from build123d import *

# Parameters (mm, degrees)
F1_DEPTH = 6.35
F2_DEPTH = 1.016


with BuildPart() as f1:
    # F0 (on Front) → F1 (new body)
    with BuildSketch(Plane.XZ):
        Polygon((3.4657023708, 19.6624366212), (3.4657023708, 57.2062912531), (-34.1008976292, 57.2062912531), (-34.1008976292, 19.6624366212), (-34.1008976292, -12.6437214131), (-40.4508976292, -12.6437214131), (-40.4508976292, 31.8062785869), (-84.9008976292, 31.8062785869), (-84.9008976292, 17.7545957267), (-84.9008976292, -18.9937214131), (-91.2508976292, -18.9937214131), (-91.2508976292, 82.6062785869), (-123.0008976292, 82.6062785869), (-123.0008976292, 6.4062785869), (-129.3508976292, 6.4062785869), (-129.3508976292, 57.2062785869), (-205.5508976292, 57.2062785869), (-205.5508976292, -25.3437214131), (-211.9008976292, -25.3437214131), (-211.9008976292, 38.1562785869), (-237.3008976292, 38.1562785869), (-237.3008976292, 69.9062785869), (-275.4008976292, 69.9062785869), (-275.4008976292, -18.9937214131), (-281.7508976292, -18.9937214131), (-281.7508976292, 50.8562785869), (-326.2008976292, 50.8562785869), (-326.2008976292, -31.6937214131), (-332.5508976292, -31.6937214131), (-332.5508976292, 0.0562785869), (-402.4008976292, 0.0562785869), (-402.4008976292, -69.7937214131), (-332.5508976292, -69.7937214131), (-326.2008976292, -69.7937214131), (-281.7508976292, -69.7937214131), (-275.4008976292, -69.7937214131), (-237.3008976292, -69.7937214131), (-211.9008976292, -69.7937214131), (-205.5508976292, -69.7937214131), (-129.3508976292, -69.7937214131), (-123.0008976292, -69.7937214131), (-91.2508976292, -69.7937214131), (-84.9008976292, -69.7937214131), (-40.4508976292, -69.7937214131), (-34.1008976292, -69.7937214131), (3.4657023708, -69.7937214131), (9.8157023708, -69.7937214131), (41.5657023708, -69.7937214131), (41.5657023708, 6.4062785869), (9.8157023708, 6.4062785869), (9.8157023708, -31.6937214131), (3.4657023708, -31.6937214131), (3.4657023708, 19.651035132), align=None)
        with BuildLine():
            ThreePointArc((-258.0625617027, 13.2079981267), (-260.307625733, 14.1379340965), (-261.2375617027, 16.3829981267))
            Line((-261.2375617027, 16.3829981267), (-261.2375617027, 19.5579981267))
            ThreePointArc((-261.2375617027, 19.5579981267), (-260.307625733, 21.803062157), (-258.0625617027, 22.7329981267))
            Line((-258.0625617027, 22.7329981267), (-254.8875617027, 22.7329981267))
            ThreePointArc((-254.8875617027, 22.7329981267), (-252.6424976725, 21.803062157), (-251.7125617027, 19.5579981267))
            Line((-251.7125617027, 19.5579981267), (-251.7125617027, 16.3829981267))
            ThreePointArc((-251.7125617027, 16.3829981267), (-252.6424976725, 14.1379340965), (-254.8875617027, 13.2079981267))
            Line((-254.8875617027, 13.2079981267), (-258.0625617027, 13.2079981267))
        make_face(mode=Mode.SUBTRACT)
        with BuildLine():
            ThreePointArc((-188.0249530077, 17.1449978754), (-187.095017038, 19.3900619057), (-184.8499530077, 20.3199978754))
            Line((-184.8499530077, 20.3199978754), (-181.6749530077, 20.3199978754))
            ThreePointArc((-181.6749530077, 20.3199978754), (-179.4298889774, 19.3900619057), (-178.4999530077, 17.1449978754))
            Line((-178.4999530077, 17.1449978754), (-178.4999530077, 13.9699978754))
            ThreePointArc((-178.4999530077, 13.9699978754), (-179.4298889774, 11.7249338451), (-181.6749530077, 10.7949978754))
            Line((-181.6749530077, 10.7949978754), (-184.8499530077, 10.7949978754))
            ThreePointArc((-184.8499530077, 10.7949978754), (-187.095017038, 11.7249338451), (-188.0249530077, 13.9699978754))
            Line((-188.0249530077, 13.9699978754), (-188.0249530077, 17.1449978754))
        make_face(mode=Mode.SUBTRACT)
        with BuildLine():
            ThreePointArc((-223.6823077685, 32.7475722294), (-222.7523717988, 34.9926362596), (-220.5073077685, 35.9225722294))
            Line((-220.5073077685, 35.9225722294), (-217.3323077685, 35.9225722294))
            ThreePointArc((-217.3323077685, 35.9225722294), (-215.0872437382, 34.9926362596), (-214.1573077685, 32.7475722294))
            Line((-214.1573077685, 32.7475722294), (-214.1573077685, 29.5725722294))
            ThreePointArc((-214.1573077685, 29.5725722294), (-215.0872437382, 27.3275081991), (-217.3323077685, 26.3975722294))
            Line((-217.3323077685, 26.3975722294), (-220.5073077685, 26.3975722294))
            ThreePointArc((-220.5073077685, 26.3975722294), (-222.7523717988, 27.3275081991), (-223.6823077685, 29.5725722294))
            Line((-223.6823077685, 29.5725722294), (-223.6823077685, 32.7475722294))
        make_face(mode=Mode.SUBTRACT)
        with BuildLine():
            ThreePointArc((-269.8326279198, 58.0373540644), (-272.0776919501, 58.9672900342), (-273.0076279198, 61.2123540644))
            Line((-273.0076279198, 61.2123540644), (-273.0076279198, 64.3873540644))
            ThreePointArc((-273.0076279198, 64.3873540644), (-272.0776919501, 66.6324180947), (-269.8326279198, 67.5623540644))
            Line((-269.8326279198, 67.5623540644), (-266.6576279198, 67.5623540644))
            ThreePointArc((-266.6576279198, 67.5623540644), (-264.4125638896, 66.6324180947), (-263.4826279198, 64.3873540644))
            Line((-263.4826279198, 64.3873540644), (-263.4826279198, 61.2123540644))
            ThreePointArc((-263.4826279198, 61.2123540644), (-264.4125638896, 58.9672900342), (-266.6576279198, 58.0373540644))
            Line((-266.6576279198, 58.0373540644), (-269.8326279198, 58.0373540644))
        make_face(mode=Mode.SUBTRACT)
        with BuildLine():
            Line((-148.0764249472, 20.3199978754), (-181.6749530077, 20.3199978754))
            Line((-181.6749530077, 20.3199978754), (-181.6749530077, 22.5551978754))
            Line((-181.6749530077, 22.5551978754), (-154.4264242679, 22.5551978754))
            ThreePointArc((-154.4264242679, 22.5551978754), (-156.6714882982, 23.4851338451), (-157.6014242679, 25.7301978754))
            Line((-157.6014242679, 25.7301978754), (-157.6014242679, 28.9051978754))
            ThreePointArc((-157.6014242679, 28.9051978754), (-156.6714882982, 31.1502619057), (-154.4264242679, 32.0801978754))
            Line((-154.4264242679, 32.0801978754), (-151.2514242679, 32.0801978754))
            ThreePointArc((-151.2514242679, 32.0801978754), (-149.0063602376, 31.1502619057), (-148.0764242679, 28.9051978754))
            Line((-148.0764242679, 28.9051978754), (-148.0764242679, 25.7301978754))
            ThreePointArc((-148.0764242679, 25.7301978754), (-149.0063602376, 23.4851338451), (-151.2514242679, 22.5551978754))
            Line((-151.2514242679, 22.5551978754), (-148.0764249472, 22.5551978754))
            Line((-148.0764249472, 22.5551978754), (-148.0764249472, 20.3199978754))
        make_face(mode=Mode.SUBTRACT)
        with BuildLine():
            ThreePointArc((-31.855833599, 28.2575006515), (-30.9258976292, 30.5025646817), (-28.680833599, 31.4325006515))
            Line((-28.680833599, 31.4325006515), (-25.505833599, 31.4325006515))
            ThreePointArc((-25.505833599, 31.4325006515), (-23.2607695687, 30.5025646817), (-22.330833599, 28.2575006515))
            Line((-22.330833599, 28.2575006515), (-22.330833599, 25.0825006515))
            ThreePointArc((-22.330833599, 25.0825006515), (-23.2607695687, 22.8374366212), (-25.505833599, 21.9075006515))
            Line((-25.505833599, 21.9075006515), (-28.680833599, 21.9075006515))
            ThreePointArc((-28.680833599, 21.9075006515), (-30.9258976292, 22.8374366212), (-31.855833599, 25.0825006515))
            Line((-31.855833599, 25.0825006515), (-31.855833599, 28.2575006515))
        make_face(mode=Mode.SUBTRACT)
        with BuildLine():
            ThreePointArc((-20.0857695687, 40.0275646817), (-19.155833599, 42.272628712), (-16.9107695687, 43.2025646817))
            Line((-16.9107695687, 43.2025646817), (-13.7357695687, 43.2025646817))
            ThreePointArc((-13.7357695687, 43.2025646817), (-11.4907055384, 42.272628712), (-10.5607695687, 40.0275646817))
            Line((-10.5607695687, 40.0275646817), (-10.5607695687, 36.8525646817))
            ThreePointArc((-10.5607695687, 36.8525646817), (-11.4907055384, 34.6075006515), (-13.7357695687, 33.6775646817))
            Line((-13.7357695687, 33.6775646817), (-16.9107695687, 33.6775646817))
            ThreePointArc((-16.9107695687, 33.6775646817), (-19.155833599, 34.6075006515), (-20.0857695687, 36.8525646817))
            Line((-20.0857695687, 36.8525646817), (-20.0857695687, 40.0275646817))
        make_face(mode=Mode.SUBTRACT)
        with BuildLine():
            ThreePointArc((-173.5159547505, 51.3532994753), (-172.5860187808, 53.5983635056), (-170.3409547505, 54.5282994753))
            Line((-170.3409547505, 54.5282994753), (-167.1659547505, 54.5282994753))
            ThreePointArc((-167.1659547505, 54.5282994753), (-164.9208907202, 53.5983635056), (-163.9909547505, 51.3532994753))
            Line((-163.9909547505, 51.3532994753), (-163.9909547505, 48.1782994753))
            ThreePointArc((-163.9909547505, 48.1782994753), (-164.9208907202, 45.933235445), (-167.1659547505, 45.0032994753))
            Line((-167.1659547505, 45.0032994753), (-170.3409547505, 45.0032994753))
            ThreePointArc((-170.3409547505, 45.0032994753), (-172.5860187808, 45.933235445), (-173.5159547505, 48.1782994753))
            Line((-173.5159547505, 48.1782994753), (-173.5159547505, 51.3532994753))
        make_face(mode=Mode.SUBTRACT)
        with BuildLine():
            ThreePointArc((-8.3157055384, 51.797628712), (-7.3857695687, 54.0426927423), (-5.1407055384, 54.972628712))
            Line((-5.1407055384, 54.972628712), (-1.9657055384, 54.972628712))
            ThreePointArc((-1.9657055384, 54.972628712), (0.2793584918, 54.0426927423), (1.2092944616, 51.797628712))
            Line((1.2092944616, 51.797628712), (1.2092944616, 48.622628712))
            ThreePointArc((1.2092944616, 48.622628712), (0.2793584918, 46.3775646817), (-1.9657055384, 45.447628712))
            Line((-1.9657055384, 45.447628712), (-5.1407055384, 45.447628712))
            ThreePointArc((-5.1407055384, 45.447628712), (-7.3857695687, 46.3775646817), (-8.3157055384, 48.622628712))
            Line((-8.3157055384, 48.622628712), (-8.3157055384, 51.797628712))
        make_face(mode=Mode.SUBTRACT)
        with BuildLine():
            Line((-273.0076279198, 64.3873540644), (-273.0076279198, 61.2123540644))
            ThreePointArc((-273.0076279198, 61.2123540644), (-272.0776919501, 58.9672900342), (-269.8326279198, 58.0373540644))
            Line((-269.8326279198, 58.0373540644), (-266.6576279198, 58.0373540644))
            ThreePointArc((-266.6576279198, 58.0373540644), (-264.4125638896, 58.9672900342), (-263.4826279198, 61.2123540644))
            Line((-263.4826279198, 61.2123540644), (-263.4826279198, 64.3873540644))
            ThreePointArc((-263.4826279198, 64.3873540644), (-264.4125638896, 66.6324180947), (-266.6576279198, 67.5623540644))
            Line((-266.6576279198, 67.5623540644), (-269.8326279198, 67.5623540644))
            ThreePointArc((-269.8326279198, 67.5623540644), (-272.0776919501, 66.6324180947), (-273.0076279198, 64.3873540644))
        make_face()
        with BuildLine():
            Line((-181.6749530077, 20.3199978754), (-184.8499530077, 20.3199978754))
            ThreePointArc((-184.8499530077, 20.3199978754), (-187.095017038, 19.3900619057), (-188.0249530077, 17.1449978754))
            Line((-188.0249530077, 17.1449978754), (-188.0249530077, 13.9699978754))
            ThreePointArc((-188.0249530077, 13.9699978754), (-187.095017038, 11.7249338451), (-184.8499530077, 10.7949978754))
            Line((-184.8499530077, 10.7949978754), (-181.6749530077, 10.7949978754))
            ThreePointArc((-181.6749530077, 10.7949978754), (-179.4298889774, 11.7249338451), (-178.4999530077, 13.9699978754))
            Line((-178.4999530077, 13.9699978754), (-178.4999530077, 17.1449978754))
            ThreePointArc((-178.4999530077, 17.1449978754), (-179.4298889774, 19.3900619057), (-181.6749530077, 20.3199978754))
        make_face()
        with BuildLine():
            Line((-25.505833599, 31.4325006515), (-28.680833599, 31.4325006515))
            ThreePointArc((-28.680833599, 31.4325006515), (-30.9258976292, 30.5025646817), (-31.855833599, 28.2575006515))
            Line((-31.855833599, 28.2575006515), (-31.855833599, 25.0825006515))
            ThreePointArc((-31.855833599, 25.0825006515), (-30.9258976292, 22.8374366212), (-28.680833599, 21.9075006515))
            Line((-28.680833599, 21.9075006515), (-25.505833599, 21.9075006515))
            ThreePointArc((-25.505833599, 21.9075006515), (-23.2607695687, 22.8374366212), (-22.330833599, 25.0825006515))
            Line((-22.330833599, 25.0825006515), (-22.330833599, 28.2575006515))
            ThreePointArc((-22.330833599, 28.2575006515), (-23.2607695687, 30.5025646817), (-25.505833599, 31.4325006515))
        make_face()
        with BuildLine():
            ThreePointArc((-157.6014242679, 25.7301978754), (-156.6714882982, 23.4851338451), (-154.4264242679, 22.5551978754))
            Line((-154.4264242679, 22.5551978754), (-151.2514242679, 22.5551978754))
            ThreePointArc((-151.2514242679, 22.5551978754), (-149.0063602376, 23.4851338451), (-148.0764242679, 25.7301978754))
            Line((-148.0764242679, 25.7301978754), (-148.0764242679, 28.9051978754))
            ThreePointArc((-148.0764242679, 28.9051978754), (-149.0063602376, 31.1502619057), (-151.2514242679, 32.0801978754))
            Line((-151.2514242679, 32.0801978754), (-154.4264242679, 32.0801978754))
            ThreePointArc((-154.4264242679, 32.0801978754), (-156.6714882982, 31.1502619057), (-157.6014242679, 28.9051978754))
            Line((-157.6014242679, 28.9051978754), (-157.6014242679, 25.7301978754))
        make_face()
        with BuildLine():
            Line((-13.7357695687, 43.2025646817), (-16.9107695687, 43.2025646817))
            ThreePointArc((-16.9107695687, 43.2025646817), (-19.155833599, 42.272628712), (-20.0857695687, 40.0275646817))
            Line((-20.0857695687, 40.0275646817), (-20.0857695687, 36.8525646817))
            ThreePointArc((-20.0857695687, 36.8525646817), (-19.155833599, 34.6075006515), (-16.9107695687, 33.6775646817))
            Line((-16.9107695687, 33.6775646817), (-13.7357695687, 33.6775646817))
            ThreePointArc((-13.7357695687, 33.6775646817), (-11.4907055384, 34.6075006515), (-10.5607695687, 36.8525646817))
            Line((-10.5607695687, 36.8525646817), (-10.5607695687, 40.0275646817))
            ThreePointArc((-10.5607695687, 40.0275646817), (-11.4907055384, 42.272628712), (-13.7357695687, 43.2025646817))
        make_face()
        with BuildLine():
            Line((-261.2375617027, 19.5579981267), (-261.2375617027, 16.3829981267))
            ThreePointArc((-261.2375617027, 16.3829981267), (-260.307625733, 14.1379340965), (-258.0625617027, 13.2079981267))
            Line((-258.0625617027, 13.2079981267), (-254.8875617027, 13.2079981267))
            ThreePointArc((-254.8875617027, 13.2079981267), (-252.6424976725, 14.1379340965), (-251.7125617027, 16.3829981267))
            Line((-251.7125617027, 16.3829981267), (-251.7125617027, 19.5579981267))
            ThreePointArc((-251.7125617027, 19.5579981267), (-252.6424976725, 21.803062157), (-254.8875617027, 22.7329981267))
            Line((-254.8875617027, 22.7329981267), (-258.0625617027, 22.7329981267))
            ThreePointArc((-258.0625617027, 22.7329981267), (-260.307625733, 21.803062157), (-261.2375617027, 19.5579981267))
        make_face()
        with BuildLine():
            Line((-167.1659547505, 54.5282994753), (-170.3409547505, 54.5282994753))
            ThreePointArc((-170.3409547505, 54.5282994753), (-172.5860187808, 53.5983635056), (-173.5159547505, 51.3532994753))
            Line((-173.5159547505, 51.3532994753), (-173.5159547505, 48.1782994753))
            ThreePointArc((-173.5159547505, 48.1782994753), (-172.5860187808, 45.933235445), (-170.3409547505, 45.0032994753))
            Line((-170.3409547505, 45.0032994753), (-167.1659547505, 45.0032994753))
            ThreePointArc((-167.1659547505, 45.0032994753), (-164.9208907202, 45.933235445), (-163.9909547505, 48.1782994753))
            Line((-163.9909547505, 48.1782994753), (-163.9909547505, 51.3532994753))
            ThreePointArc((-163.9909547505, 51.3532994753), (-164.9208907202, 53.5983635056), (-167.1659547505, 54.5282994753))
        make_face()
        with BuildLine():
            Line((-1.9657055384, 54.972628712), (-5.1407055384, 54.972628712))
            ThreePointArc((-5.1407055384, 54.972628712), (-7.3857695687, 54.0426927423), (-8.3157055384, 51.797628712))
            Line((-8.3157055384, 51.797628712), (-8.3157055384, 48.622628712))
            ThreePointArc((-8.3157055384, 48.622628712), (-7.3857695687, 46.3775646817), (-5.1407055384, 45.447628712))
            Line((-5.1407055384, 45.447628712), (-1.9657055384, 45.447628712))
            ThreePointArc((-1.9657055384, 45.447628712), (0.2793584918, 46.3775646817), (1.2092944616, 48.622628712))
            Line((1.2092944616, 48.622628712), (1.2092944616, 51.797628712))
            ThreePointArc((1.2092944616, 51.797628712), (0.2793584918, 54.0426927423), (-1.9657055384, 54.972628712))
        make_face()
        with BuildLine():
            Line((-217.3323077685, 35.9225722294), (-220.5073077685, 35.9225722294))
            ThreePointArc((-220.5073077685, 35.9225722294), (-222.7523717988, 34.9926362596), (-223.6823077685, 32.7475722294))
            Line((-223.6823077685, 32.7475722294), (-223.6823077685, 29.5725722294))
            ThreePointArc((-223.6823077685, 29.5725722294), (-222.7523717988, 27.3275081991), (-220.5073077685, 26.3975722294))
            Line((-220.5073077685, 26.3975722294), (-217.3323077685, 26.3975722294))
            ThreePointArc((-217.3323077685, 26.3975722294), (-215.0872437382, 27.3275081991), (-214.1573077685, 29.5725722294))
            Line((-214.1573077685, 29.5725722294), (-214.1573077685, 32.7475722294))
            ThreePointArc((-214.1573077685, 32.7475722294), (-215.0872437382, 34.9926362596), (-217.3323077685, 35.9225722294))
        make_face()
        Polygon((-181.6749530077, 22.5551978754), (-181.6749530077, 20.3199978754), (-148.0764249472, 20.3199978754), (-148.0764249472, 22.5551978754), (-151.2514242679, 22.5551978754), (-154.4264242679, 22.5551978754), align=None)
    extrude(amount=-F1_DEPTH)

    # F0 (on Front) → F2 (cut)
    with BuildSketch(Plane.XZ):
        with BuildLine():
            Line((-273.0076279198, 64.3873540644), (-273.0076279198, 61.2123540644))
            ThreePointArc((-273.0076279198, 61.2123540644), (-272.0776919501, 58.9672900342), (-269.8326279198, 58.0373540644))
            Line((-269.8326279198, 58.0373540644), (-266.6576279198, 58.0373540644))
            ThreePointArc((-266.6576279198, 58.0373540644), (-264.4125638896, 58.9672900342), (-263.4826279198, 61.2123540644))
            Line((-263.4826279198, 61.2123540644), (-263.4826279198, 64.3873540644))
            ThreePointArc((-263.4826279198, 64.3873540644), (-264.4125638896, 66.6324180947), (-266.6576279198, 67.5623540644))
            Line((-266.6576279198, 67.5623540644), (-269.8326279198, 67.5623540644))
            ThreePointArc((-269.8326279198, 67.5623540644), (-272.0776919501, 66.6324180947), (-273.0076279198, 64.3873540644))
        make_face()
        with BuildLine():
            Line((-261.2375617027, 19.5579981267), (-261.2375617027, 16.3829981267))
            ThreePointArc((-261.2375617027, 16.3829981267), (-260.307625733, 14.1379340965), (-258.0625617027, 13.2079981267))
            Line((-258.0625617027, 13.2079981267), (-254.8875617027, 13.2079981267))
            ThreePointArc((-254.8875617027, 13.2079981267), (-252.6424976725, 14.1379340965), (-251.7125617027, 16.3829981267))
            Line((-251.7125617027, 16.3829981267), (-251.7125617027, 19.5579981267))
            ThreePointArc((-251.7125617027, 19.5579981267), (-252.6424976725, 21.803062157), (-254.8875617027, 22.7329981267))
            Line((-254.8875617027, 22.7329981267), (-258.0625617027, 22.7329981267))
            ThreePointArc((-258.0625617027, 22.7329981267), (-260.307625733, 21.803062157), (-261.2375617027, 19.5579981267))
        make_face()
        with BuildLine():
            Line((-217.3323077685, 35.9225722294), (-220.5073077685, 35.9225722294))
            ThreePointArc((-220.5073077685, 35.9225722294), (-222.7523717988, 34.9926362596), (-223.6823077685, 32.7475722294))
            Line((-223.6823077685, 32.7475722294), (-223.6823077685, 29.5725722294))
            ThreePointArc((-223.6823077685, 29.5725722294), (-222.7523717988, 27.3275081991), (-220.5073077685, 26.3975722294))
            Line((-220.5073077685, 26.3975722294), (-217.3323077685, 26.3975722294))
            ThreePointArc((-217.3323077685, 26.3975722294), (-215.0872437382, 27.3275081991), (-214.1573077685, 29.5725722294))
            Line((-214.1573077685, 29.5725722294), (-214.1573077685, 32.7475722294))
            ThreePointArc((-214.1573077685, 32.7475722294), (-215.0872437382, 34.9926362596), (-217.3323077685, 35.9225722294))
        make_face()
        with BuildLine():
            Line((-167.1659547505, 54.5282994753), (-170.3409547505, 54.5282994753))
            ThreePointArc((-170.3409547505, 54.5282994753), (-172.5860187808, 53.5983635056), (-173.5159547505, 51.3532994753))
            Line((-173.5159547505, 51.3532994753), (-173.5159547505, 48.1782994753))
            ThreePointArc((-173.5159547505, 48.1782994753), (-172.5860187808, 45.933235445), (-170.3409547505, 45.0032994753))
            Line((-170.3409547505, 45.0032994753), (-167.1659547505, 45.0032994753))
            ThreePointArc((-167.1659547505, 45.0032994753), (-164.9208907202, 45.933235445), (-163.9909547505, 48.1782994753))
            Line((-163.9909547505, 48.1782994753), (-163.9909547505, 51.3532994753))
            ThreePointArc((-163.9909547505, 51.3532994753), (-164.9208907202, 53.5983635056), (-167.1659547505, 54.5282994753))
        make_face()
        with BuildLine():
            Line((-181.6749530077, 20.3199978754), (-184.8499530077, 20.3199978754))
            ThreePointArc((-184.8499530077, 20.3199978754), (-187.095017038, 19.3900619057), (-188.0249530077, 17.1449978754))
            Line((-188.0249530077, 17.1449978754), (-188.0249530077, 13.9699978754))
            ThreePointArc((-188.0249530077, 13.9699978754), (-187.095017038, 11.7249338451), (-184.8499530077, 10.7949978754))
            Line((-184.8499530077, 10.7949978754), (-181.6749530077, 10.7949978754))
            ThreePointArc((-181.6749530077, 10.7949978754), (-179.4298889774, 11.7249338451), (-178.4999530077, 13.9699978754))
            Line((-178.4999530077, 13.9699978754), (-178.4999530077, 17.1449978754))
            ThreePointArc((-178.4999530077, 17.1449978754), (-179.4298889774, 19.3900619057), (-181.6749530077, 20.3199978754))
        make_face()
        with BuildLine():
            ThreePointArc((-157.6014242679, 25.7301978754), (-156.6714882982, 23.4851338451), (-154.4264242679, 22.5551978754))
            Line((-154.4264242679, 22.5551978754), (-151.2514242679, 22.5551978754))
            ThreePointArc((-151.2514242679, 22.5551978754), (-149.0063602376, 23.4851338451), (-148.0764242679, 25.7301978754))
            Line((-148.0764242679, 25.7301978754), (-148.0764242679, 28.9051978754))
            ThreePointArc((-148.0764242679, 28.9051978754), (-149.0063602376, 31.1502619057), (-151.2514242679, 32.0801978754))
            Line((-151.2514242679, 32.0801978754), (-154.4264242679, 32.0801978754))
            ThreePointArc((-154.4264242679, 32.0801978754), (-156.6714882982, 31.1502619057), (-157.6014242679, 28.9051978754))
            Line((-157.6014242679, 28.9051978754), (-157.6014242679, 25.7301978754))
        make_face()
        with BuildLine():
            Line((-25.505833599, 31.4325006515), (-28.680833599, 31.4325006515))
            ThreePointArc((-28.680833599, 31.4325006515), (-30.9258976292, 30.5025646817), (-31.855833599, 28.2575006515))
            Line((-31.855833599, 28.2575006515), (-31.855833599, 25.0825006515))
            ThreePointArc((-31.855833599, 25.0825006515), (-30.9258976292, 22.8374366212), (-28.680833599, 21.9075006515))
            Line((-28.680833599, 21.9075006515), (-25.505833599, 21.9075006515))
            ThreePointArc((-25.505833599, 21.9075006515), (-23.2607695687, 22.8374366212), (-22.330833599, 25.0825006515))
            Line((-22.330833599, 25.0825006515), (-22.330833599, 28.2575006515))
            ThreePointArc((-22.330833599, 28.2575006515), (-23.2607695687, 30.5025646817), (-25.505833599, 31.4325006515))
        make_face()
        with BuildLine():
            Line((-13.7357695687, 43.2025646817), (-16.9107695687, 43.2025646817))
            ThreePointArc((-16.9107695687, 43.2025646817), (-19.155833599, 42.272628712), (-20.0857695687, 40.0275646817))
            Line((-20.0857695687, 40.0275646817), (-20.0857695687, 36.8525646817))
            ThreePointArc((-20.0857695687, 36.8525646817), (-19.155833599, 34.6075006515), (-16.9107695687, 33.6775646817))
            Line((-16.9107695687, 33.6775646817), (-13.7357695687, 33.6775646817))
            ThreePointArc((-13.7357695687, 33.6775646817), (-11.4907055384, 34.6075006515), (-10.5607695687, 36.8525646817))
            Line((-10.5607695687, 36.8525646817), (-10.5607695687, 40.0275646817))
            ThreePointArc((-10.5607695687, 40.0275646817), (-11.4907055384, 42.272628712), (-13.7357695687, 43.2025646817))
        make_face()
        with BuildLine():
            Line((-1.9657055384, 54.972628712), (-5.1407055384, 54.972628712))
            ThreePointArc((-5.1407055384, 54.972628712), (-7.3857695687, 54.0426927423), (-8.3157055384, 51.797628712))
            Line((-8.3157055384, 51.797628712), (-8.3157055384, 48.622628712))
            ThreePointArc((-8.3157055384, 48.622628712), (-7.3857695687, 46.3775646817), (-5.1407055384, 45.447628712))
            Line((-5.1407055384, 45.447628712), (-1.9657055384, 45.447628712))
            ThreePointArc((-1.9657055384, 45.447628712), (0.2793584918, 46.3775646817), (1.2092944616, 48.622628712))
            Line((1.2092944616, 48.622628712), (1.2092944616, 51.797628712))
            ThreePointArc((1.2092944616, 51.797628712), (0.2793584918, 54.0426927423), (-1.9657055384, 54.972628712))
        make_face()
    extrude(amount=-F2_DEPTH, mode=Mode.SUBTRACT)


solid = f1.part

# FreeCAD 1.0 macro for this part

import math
import FreeCAD as App
import Part
import Sketcher

V = App.Vector
Q = App.Units.Quantity


def add_polygon(sketch, points):
    """Adds a closed chain of lines whose ends are joined by coincident constraints."""
    first, n = sketch.GeometryCount, len(points)
    for a, b in zip(points, points[1:] + points[:1]):
        sketch.addGeometry(Part.LineSegment(App.Vector(*a, 0), App.Vector(*b, 0)), False)
    for i in range(n):
        sketch.addConstraint(Sketcher.Constraint("Coincident", first + i, 2, first + (i + 1) % n, 1))

doc = App.newDocument("Part")
body = doc.addObject("PartDesign::Body", "Body")

sketch1 = doc.addObject("Sketcher::SketchObject", "Sketch")
body.addObject(sketch1)
sketch1.AttachmentSupport = (doc.XZ_Plane, [""])
sketch1.MapMode = "FlatFace"
add_polygon(sketch1, [(3, 57), (-34, 57), (-34, -13), (-40, -13), (-40, 32), (-85, 32), (-85, -19), (-91, -19), (-91, 83), (-123, 83), (-123, 6), (-129, 6), (-129, 57), (-206, 57), (-206, -25), (-212, -25), (-212, 38), (-237, 38), (-237, 70), (-275, 70), (-275, -19), (-282, -19), (-282, 51), (-326, 51), (-326, -32), (-333, -32), (-333, 0), (-402, 0), (-402, -70), (42, -70), (42, 6), (10, 6), (10, -32), (3, -32)])
sketch1.addConstraint([
    Sketcher.Constraint("Horizontal", 0),
    Sketcher.Constraint("Vertical", 1),
    Sketcher.Constraint("Horizontal", 2),
    Sketcher.Constraint("Vertical", 3),
    Sketcher.Constraint("Horizontal", 4),
    Sketcher.Constraint("Vertical", 5),
    Sketcher.Constraint("Horizontal", 6),
    Sketcher.Constraint("Vertical", 7),
    Sketcher.Constraint("Horizontal", 8),
    Sketcher.Constraint("Vertical", 9),
    Sketcher.Constraint("Horizontal", 10),
    Sketcher.Constraint("Vertical", 11),
    Sketcher.Constraint("Horizontal", 12),
    Sketcher.Constraint("Vertical", 13),
    Sketcher.Constraint("Horizontal", 14),
    Sketcher.Constraint("Vertical", 15),
    Sketcher.Constraint("Horizontal", 16),
    Sketcher.Constraint("Vertical", 17),
    Sketcher.Constraint("Horizontal", 18),
    Sketcher.Constraint("Vertical", 19),
    Sketcher.Constraint("Horizontal", 20),
    Sketcher.Constraint("Vertical", 21),
    Sketcher.Constraint("Horizontal", 22),
    Sketcher.Constraint("Vertical", 23),
    Sketcher.Constraint("Horizontal", 24),
    Sketcher.Constraint("Vertical", 25),
    Sketcher.Constraint("Horizontal", 26),
    Sketcher.Constraint("Vertical", 27),
    Sketcher.Constraint("Horizontal", 28),
    Sketcher.Constraint("Vertical", 29),
    Sketcher.Constraint("Horizontal", 30),
    Sketcher.Constraint("Vertical", 31),
    Sketcher.Constraint("Horizontal", 32),
    Sketcher.Constraint("Vertical", 33),
    Sketcher.Constraint("Horizontal", 6, 2, 19, 2),
    Sketcher.Constraint("Horizontal", 10, 2, 29, 2),
    Sketcher.Constraint("Horizontal", 24, 2, 31, 2),
    Sketcher.Constraint("Equal", 2, 6),
    Sketcher.Constraint("Equal", 6, 10),
    Sketcher.Constraint("Equal", 10, 14),
    Sketcher.Constraint("Equal", 14, 20),
    Sketcher.Constraint("Equal", 4, 22),
    Sketcher.Constraint("Equal", 20, 24),
    Sketcher.Constraint("Equal", 8, 30),
    Sketcher.Constraint("Equal", 24, 32),
    Sketcher.Constraint("Equal", 22, 3),
    Sketcher.Constraint("Equal", 12, 9),
    Sketcher.Constraint("Equal", 5, 11),
    Sketcher.Constraint("Equal", 30, 17),
    Sketcher.Constraint("Equal", 26, 21),
    Sketcher.Constraint("Equal", 13, 23),
    Sketcher.Constraint("Equal", 17, 25),
    Sketcher.Constraint("Equal", 21, 27),
    Sketcher.Constraint("Equal", 9, 29),
    Sketcher.Constraint("Equal", 18, 31),
    Sketcher.Constraint("DistanceX", 12, 2, 12, 1, Q("3 in")),
    Sketcher.Constraint("DistanceX", 16, 2, 16, 1, Q("1 in")),
    Sketcher.Constraint("DistanceY", 5, 2, 5, 1, Q("2 in")),
    Sketcher.Constraint("DistanceY", 7, 1, 7, 2, Q("4 in")),
    Sketcher.Constraint("DistanceX", 18, 2, 18, 1, Q("1.5 in")),
    Sketcher.Constraint("DistanceY", 15, 1, 15, 2, Q("2.5 in")),
    Sketcher.Constraint("DistanceX", 4, 2, 0, 2, Q("2 in")),
    Sketcher.Constraint("DistanceX", 20, 2, 13, 2, Q("3 in")),
    Sketcher.Constraint("DistanceX", 26, 2, 23, 2, Q("3 in")),
    Sketcher.Constraint("DistanceX", 0, 2, 0, 1, Q("1.479 in")),
    Sketcher.Constraint("DistanceY", 1, 2, 1, 1, Q("69.850013 mm")),
    Sketcher.Constraint("DistanceY", -1, 1, 0, 2, Q("57.206291 mm")),
    Sketcher.Constraint("DistanceX", 0, 2, -1, 1, Q("34.100898 mm")),
])
pad1 = doc.addObject("PartDesign::Pad", "Pad")
body.addObject(pad1)
pad1.Profile = sketch1
pad1.Length = Q("0.25 in")
pad1.Reversed = True

sketch2 = doc.addObject("Sketcher::SketchObject", "Sketch001")
body.addObject(sketch2)
sketch2.AttachmentSupport = (doc.XZ_Plane, [""])
sketch2.MapMode = "FlatFace"
sketch2.addGeometry([
    Part.LineSegment(V(-273, 64.4, 0), V(-273, 61.2, 0)),
    Part.ArcOfCircle(Part.Circle(V(-269.8, 61.2, 0), V(0, 0, 1), 3.2), math.radians(180), math.radians(270)),
    Part.LineSegment(V(-269.8, 58, 0), V(-266.7, 58, 0)),
    Part.ArcOfCircle(Part.Circle(V(-266.7, 61.2, 0), V(0, 0, 1), 3.2), math.radians(-90), math.radians(0)),
    Part.LineSegment(V(-263.5, 61.2, 0), V(-263.5, 64.4, 0)),
    Part.ArcOfCircle(Part.Circle(V(-266.7, 64.4, 0), V(0, 0, 1), 3.2), math.radians(0), math.radians(90)),
    Part.LineSegment(V(-266.7, 67.6, 0), V(-269.8, 67.6, 0)),
    Part.ArcOfCircle(Part.Circle(V(-269.8, 64.4, 0), V(0, 0, 1), 3.2), math.radians(90), math.radians(180)),
    Part.LineSegment(V(-261.2, 19.6, 0), V(-261.2, 16.4, 0)),
    Part.ArcOfCircle(Part.Circle(V(-258.1, 16.4, 0), V(0, 0, 1), 3.2), math.radians(180), math.radians(270)),
    Part.LineSegment(V(-258.1, 13.2, 0), V(-254.9, 13.2, 0)),
    Part.ArcOfCircle(Part.Circle(V(-254.9, 16.4, 0), V(0, 0, 1), 3.2), math.radians(-90), math.radians(0)),
    Part.LineSegment(V(-251.7, 16.4, 0), V(-251.7, 19.6, 0)),
    Part.ArcOfCircle(Part.Circle(V(-254.9, 19.6, 0), V(0, 0, 1), 3.2), math.radians(0), math.radians(90)),
    Part.LineSegment(V(-254.9, 22.7, 0), V(-258.1, 22.7, 0)),
    Part.ArcOfCircle(Part.Circle(V(-258.1, 19.6, 0), V(0, 0, 1), 3.2), math.radians(90), math.radians(180)),
    Part.LineSegment(V(-217.3, 35.9, 0), V(-220.5, 35.9, 0)),
    Part.ArcOfCircle(Part.Circle(V(-220.5, 32.7, 0), V(0, 0, 1), 3.2), math.radians(90), math.radians(180)),
    Part.LineSegment(V(-223.7, 32.7, 0), V(-223.7, 29.6, 0)),
    Part.ArcOfCircle(Part.Circle(V(-220.5, 29.6, 0), V(0, 0, 1), 3.2), math.radians(180), math.radians(270)),
    Part.LineSegment(V(-220.5, 26.4, 0), V(-217.3, 26.4, 0)),
    Part.ArcOfCircle(Part.Circle(V(-217.3, 29.6, 0), V(0, 0, 1), 3.2), math.radians(-90), math.radians(0)),
    Part.LineSegment(V(-214.2, 29.6, 0), V(-214.2, 32.7, 0)),
    Part.ArcOfCircle(Part.Circle(V(-217.3, 32.7, 0), V(0, 0, 1), 3.2), math.radians(0), math.radians(90)),
    Part.LineSegment(V(-167.2, 54.5, 0), V(-170.3, 54.5, 0)),
    Part.ArcOfCircle(Part.Circle(V(-170.3, 51.4, 0), V(0, 0, 1), 3.2), math.radians(90), math.radians(180)),
    Part.LineSegment(V(-173.5, 51.4, 0), V(-173.5, 48.2, 0)),
    Part.ArcOfCircle(Part.Circle(V(-170.3, 48.2, 0), V(0, 0, 1), 3.2), math.radians(180), math.radians(270)),
    Part.LineSegment(V(-170.3, 45, 0), V(-167.2, 45, 0)),
    Part.ArcOfCircle(Part.Circle(V(-167.2, 48.2, 0), V(0, 0, 1), 3.2), math.radians(-90), math.radians(0)),
    Part.LineSegment(V(-164, 48.2, 0), V(-164, 51.4, 0)),
    Part.ArcOfCircle(Part.Circle(V(-167.2, 51.4, 0), V(0, 0, 1), 3.2), math.radians(0), math.radians(90)),
    Part.LineSegment(V(-181.7, 20.3, 0), V(-184.8, 20.3, 0)),
    Part.ArcOfCircle(Part.Circle(V(-184.8, 17.1, 0), V(0, 0, 1), 3.2), math.radians(90), math.radians(180)),
    Part.LineSegment(V(-188, 17.1, 0), V(-188, 14, 0)),
    Part.ArcOfCircle(Part.Circle(V(-184.8, 14, 0), V(0, 0, 1), 3.2), math.radians(180), math.radians(270)),
    Part.LineSegment(V(-184.8, 10.8, 0), V(-181.7, 10.8, 0)),
    Part.ArcOfCircle(Part.Circle(V(-181.7, 14, 0), V(0, 0, 1), 3.2), math.radians(-90), math.radians(0)),
    Part.LineSegment(V(-178.5, 14, 0), V(-178.5, 17.1, 0)),
    Part.ArcOfCircle(Part.Circle(V(-181.7, 17.1, 0), V(0, 0, 1), 3.2), math.radians(0), math.radians(90)),
    Part.ArcOfCircle(Part.Circle(V(-154.4, 25.7, 0), V(0, 0, 1), 3.2), math.radians(180), math.radians(270)),
    Part.LineSegment(V(-154.4, 22.6, 0), V(-151.3, 22.6, 0)),
    Part.ArcOfCircle(Part.Circle(V(-151.3, 25.7, 0), V(0, 0, 1), 3.2), math.radians(-90), math.radians(0)),
    Part.LineSegment(V(-148.1, 25.7, 0), V(-148.1, 28.9, 0)),
    Part.ArcOfCircle(Part.Circle(V(-151.3, 28.9, 0), V(0, 0, 1), 3.2), math.radians(0), math.radians(90)),
    Part.LineSegment(V(-151.3, 32.1, 0), V(-154.4, 32.1, 0)),
    Part.ArcOfCircle(Part.Circle(V(-154.4, 28.9, 0), V(0, 0, 1), 3.2), math.radians(90), math.radians(180)),
    Part.LineSegment(V(-157.6, 28.9, 0), V(-157.6, 25.7, 0)),
    Part.LineSegment(V(-25.5, 31.4, 0), V(-28.7, 31.4, 0)),
    Part.ArcOfCircle(Part.Circle(V(-28.7, 28.3, 0), V(0, 0, 1), 3.2), math.radians(90), math.radians(180)),
    Part.LineSegment(V(-31.9, 28.3, 0), V(-31.9, 25.1, 0)),
    Part.ArcOfCircle(Part.Circle(V(-28.7, 25.1, 0), V(0, 0, 1), 3.2), math.radians(-180), math.radians(-90)),
    Part.LineSegment(V(-28.7, 21.9, 0), V(-25.5, 21.9, 0)),
    Part.ArcOfCircle(Part.Circle(V(-25.5, 25.1, 0), V(0, 0, 1), 3.2), math.radians(-90), math.radians(0)),
    Part.LineSegment(V(-22.3, 25.1, 0), V(-22.3, 28.3, 0)),
    Part.ArcOfCircle(Part.Circle(V(-25.5, 28.3, 0), V(0, 0, 1), 3.2), math.radians(0), math.radians(90)),
    Part.LineSegment(V(-13.7, 43.2, 0), V(-16.9, 43.2, 0)),
    Part.ArcOfCircle(Part.Circle(V(-16.9, 40, 0), V(0, 0, 1), 3.2), math.radians(90), math.radians(180)),
    Part.LineSegment(V(-20.1, 40, 0), V(-20.1, 36.9, 0)),
    Part.ArcOfCircle(Part.Circle(V(-16.9, 36.9, 0), V(0, 0, 1), 3.2), math.radians(180), math.radians(270)),
    Part.LineSegment(V(-16.9, 33.7, 0), V(-13.7, 33.7, 0)),
    Part.ArcOfCircle(Part.Circle(V(-13.7, 36.9, 0), V(0, 0, 1), 3.2), math.radians(-90), math.radians(0)),
    Part.LineSegment(V(-10.6, 36.9, 0), V(-10.6, 40, 0)),
    Part.ArcOfCircle(Part.Circle(V(-13.7, 40, 0), V(0, 0, 1), 3.2), math.radians(0), math.radians(90)),
    Part.LineSegment(V(-2, 55, 0), V(-5.1, 55, 0)),
    Part.ArcOfCircle(Part.Circle(V(-5.1, 51.8, 0), V(0, 0, 1), 3.2), math.radians(90), math.radians(180)),
    Part.LineSegment(V(-8.3, 51.8, 0), V(-8.3, 48.6, 0)),
    Part.ArcOfCircle(Part.Circle(V(-5.1, 48.6, 0), V(0, 0, 1), 3.2), math.radians(180), math.radians(270)),
    Part.LineSegment(V(-5.1, 45.4, 0), V(-2, 45.4, 0)),
    Part.ArcOfCircle(Part.Circle(V(-2, 48.6, 0), V(0, 0, 1), 3.2), math.radians(-90), math.radians(0)),
    Part.LineSegment(V(1.2, 48.6, 0), V(1.2, 51.8, 0)),
    Part.ArcOfCircle(Part.Circle(V(-2, 51.8, 0), V(0, 0, 1), 3.2), math.radians(0), math.radians(90)),
], False)
sketch2.addConstraint([
    Sketcher.Constraint("Tangent", 0, 2, 1, 1),
    Sketcher.Constraint("Tangent", 1, 2, 2, 1),
    Sketcher.Constraint("Tangent", 2, 2, 3, 1),
    Sketcher.Constraint("Tangent", 3, 2, 4, 1),
    Sketcher.Constraint("Tangent", 4, 2, 5, 1),
    Sketcher.Constraint("Tangent", 5, 2, 6, 1),
    Sketcher.Constraint("Tangent", 6, 2, 7, 1),
    Sketcher.Constraint("Tangent", 7, 2, 0, 1),
    Sketcher.Constraint("Tangent", 8, 2, 9, 1),
    Sketcher.Constraint("Tangent", 9, 2, 10, 1),
    Sketcher.Constraint("Tangent", 10, 2, 11, 1),
    Sketcher.Constraint("Tangent", 11, 2, 12, 1),
    Sketcher.Constraint("Tangent", 12, 2, 13, 1),
    Sketcher.Constraint("Tangent", 13, 2, 14, 1),
    Sketcher.Constraint("Tangent", 14, 2, 15, 1),
    Sketcher.Constraint("Tangent", 15, 2, 8, 1),
    Sketcher.Constraint("Tangent", 16, 2, 17, 1),
    Sketcher.Constraint("Tangent", 17, 2, 18, 1),
    Sketcher.Constraint("Tangent", 18, 2, 19, 1),
    Sketcher.Constraint("Tangent", 19, 2, 20, 1),
    Sketcher.Constraint("Tangent", 20, 2, 21, 1),
    Sketcher.Constraint("Tangent", 21, 2, 22, 1),
    Sketcher.Constraint("Tangent", 22, 2, 23, 1),
    Sketcher.Constraint("Tangent", 23, 2, 16, 1),
    Sketcher.Constraint("Tangent", 24, 2, 25, 1),
    Sketcher.Constraint("Tangent", 25, 2, 26, 1),
    Sketcher.Constraint("Tangent", 26, 2, 27, 1),
    Sketcher.Constraint("Tangent", 27, 2, 28, 1),
    Sketcher.Constraint("Tangent", 28, 2, 29, 1),
    Sketcher.Constraint("Tangent", 29, 2, 30, 1),
    Sketcher.Constraint("Tangent", 30, 2, 31, 1),
    Sketcher.Constraint("Tangent", 31, 2, 24, 1),
    Sketcher.Constraint("Tangent", 32, 2, 33, 1),
    Sketcher.Constraint("Tangent", 33, 2, 34, 1),
    Sketcher.Constraint("Tangent", 34, 2, 35, 1),
    Sketcher.Constraint("Tangent", 35, 2, 36, 1),
    Sketcher.Constraint("Tangent", 36, 2, 37, 1),
    Sketcher.Constraint("Tangent", 37, 2, 38, 1),
    Sketcher.Constraint("Tangent", 38, 2, 39, 1),
    Sketcher.Constraint("Tangent", 39, 2, 32, 1),
    Sketcher.Constraint("Tangent", 40, 2, 41, 1),
    Sketcher.Constraint("Tangent", 41, 2, 42, 1),
    Sketcher.Constraint("Tangent", 42, 2, 43, 1),
    Sketcher.Constraint("Tangent", 43, 2, 44, 1),
    Sketcher.Constraint("Tangent", 44, 2, 45, 1),
    Sketcher.Constraint("Tangent", 45, 2, 46, 1),
    Sketcher.Constraint("Tangent", 46, 2, 47, 1),
    Sketcher.Constraint("Tangent", 47, 2, 40, 1),
    Sketcher.Constraint("Tangent", 48, 2, 49, 1),
    Sketcher.Constraint("Tangent", 49, 2, 50, 1),
    Sketcher.Constraint("Tangent", 50, 2, 51, 1),
    Sketcher.Constraint("Tangent", 51, 2, 52, 1),
    Sketcher.Constraint("Tangent", 52, 2, 53, 1),
    Sketcher.Constraint("Tangent", 53, 2, 54, 1),
    Sketcher.Constraint("Tangent", 54, 2, 55, 1),
    Sketcher.Constraint("Tangent", 55, 2, 48, 1),
    Sketcher.Constraint("Tangent", 56, 2, 57, 1),
    Sketcher.Constraint("Tangent", 57, 2, 58, 1),
    Sketcher.Constraint("Tangent", 58, 2, 59, 1),
    Sketcher.Constraint("Tangent", 59, 2, 60, 1),
    Sketcher.Constraint("Tangent", 60, 2, 61, 1),
    Sketcher.Constraint("Tangent", 61, 2, 62, 1),
    Sketcher.Constraint("Tangent", 62, 2, 63, 1),
    Sketcher.Constraint("Tangent", 63, 2, 56, 1),
    Sketcher.Constraint("Tangent", 64, 2, 65, 1),
    Sketcher.Constraint("Tangent", 65, 2, 66, 1),
    Sketcher.Constraint("Tangent", 66, 2, 67, 1),
    Sketcher.Constraint("Tangent", 67, 2, 68, 1),
    Sketcher.Constraint("Tangent", 68, 2, 69, 1),
    Sketcher.Constraint("Tangent", 69, 2, 70, 1),
    Sketcher.Constraint("Tangent", 70, 2, 71, 1),
    Sketcher.Constraint("Tangent", 71, 2, 64, 1),
    Sketcher.Constraint("Vertical", 0),
    Sketcher.Constraint("Horizontal", 2),
    Sketcher.Constraint("Vertical", 4),
    Sketcher.Constraint("Horizontal", 6),
    Sketcher.Constraint("Vertical", 8),
    Sketcher.Constraint("Horizontal", 10),
    Sketcher.Constraint("Vertical", 12),
    Sketcher.Constraint("Horizontal", 14),
    Sketcher.Constraint("Horizontal", 16),
    Sketcher.Constraint("Vertical", 18),
    Sketcher.Constraint("Horizontal", 20),
    Sketcher.Constraint("Vertical", 22),
    Sketcher.Constraint("Horizontal", 24),
    Sketcher.Constraint("Vertical", 26),
    Sketcher.Constraint("Horizontal", 28),
    Sketcher.Constraint("Vertical", 30),
    Sketcher.Constraint("Horizontal", 32),
    Sketcher.Constraint("Vertical", 34),
    Sketcher.Constraint("Horizontal", 36),
    Sketcher.Constraint("Vertical", 38),
    Sketcher.Constraint("Horizontal", 41),
    Sketcher.Constraint("Vertical", 43),
    Sketcher.Constraint("Horizontal", 45),
    Sketcher.Constraint("Vertical", 47),
    Sketcher.Constraint("Horizontal", 48),
    Sketcher.Constraint("Vertical", 50),
    Sketcher.Constraint("Horizontal", 52),
    Sketcher.Constraint("Vertical", 54),
    Sketcher.Constraint("Horizontal", 56),
    Sketcher.Constraint("Vertical", 58),
    Sketcher.Constraint("Horizontal", 60),
    Sketcher.Constraint("Vertical", 62),
    Sketcher.Constraint("Horizontal", 64),
    Sketcher.Constraint("Vertical", 66),
    Sketcher.Constraint("Horizontal", 68),
    Sketcher.Constraint("Vertical", 70),
    Sketcher.Constraint("Equal", 1, 3),
    Sketcher.Constraint("Equal", 3, 5),
    Sketcher.Constraint("Equal", 5, 7),
    Sketcher.Constraint("Equal", 7, 9),
    Sketcher.Constraint("Equal", 9, 11),
    Sketcher.Constraint("Equal", 11, 13),
    Sketcher.Constraint("Equal", 13, 15),
    Sketcher.Constraint("Equal", 15, 17),
    Sketcher.Constraint("Equal", 17, 19),
    Sketcher.Constraint("Equal", 19, 21),
    Sketcher.Constraint("Equal", 21, 23),
    Sketcher.Constraint("Equal", 23, 25),
    Sketcher.Constraint("Equal", 25, 27),
    Sketcher.Constraint("Equal", 27, 29),
    Sketcher.Constraint("Equal", 29, 31),
    Sketcher.Constraint("Equal", 31, 33),
    Sketcher.Constraint("Equal", 33, 35),
    Sketcher.Constraint("Equal", 35, 37),
    Sketcher.Constraint("Equal", 37, 39),
    Sketcher.Constraint("Equal", 39, 40),
    Sketcher.Constraint("Equal", 40, 42),
    Sketcher.Constraint("Equal", 42, 44),
    Sketcher.Constraint("Equal", 44, 46),
    Sketcher.Constraint("Equal", 46, 49),
    Sketcher.Constraint("Equal", 49, 51),
    Sketcher.Constraint("Equal", 51, 53),
    Sketcher.Constraint("Equal", 53, 55),
    Sketcher.Constraint("Equal", 55, 57),
    Sketcher.Constraint("Equal", 57, 59),
    Sketcher.Constraint("Equal", 59, 61),
    Sketcher.Constraint("Equal", 61, 63),
    Sketcher.Constraint("Equal", 63, 65),
    Sketcher.Constraint("Equal", 65, 67),
    Sketcher.Constraint("Equal", 67, 69),
    Sketcher.Constraint("Equal", 69, 71),
    Sketcher.Constraint("Equal", 6, 10),
    Sketcher.Constraint("Equal", 14, 16),
    Sketcher.Constraint("Equal", 20, 24),
    Sketcher.Constraint("Equal", 28, 32),
    Sketcher.Constraint("Equal", 36, 41),
    Sketcher.Constraint("Equal", 45, 48),
    Sketcher.Constraint("Equal", 52, 56),
    Sketcher.Constraint("Equal", 60, 64),
    Sketcher.Constraint("Equal", 68, 0),
    Sketcher.Constraint("Equal", 4, 8),
    Sketcher.Constraint("Equal", 12, 18),
    Sketcher.Constraint("Equal", 22, 26),
    Sketcher.Constraint("Equal", 30, 34),
    Sketcher.Constraint("Equal", 38, 43),
    Sketcher.Constraint("Equal", 47, 50),
    Sketcher.Constraint("Equal", 54, 58),
    Sketcher.Constraint("Equal", 62, 66),
    Sketcher.Constraint("Radius", 1, Q("0.125 in")),
    Sketcher.Constraint("DistanceY", -1, 1, 32, 2, Q("0.7999999 in")),
    Sketcher.Constraint("DistanceX", 2, 1, 2, 2, Q("0.125 in")),
    Sketcher.Constraint("DistanceY", -1, 1, 13, 3, Q("0.7699999 in")),
    Sketcher.Constraint("DistanceY", -1, 1, 40, 3, Q("1.0129999 in")),
    Sketcher.Constraint("DistanceY", -1, 1, 49, 3, Q("1.1125 in")),
    Sketcher.Constraint("DistanceY", -1, 1, 25, 3, Q("51.353299 mm")),
    Sketcher.Constraint("DistanceX", 9, 3, -1, 1, Q("258.062562 mm")),
    Sketcher.Constraint("DistanceX", 57, 3, -1, 1, Q("16.91077 mm")),
    Sketcher.Constraint("DistanceY", -1, 1, 65, 3, Q("51.797629 mm")),
    Sketcher.Constraint("DistanceX", 1, 3, -1, 1, Q("269.832628 mm")),
    Sketcher.Constraint("DistanceY", -1, 1, 1, 3, Q("61.212354 mm")),
    Sketcher.Constraint("DistanceX", 17, 3, -1, 1, Q("220.507308 mm")),
    Sketcher.Constraint("DistanceY", -1, 1, 17, 3, Q("32.747572 mm")),
    Sketcher.Constraint("DistanceX", 25, 3, -1, 1, Q("170.340955 mm")),
    Sketcher.Constraint("DistanceX", 33, 3, -1, 1, Q("184.849953 mm")),
    Sketcher.Constraint("DistanceX", 40, 3, -1, 1, Q("154.426424 mm")),
    Sketcher.Constraint("DistanceX", 49, 3, -1, 1, Q("28.680834 mm")),
    Sketcher.Constraint("DistanceY", -1, 1, 57, 3, Q("40.027565 mm")),
    Sketcher.Constraint("DistanceX", 65, 3, -1, 1, Q("5.140706 mm")),
])
pocket1 = doc.addObject("PartDesign::Pocket", "Pocket")
body.addObject(pocket1)
pocket1.Profile = sketch2
pocket1.Length = Q("0.04 in")

doc.recompute()
